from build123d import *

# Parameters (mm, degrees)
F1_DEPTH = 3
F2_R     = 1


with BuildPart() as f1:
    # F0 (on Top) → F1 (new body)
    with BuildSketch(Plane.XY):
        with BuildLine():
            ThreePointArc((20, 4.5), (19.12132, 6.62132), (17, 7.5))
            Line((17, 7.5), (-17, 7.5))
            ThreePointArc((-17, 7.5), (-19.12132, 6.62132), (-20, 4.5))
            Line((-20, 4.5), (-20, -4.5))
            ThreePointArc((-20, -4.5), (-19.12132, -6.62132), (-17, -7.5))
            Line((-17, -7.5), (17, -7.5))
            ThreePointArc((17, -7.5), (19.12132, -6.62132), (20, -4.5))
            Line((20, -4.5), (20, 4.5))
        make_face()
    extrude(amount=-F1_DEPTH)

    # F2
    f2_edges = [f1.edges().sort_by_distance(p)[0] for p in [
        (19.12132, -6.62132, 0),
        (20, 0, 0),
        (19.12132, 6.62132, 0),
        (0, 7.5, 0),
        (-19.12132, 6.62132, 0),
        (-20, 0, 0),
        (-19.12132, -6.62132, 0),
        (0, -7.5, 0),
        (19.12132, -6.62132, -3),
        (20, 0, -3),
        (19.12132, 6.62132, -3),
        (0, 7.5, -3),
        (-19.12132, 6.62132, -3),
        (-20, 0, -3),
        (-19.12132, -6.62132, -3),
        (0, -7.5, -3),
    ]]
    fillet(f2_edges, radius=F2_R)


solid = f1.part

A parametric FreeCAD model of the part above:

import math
import FreeCAD as App
import Part
import Sketcher

V = App.Vector


def edges_at(feature, points):
    """Names of the edges that pass closest to the given points."""
    edges = feature.Shape.Edges
    near = lambda p: min(range(len(edges)), key=lambda i: edges[i].distToShape(Part.Vertex(*p))[0])
    return sorted({f"Edge{near(p) + 1}" for p in points})

doc = App.newDocument("Part")
params = doc.addObject("Spreadsheet::Sheet", "Params")
for row, (alias, value) in enumerate([
    ("sketch1_radius", "3.000001 mm"),
    ("sketch1_width", "34 mm"),
    ("sketch1_height", "9 mm"),
    ("pad1_length", "3 mm"),
    ("fillet_radius", "1 mm"),
], start=1):
    params.set(f"A{row}", alias)
    params.set(f"B{row}", "=" + value)
    params.setAlias(f"B{row}", alias)

body = doc.addObject("PartDesign::Body", "Body")

# Sketch on XY plane
sketch1 = doc.addObject("Sketcher::SketchObject", "Sketch")
body.addObject(sketch1)
sketch1.AttachmentSupport = (doc.XY_Plane, [""])
sketch1.MapMode = "FlatFace"
sketch1.addGeometry([
    Part.ArcOfCircle(Part.Circle(V(17, 4.5, 0), V(0, 0, 1), 3), math.radians(0), math.radians(90)),  # 0
    Part.LineSegment(V(17, 7.5, 0), V(-17, 7.5, 0)),  # 1
    Part.ArcOfCircle(Part.Circle(V(-17, 4.5, 0), V(0, 0, 1), 3), math.radians(90), math.radians(180)),  # 2
    Part.LineSegment(V(-20, 4.5, 0), V(-20, -4.5, 0)),  # 3
    Part.ArcOfCircle(Part.Circle(V(-17, -4.5, 0), V(0, 0, 1), 3), math.radians(-180), math.radians(-90)),  # 4
    Part.LineSegment(V(-17, -7.5, 0), V(17, -7.5, 0)),  # 5
    Part.ArcOfCircle(Part.Circle(V(17, -4.5, 0), V(0, 0, 1), 3), math.radians(-90), math.radians(0)),  # 6
    Part.LineSegment(V(20, -4.5, 0), V(20, 4.5, 0)),  # 7
], False)
sketch1.addConstraint([
    Sketcher.Constraint("Tangent", 0, 2, 1, 1),
    Sketcher.Constraint("Tangent", 1, 2, 2, 1),
    Sketcher.Constraint("Tangent", 2, 2, 3, 1),
    Sketcher.Constraint("Tangent", 3, 2, 4, 1),
    Sketcher.Constraint("Tangent", 4, 2, 5, 1),
    Sketcher.Constraint("Tangent", 5, 2, 6, 1),
    Sketcher.Constraint("Tangent", 6, 2, 7, 1),
    Sketcher.Constraint("Tangent", 7, 2, 0, 1),
    Sketcher.Constraint("Horizontal", 1),
    Sketcher.Constraint("Vertical", 3),
    Sketcher.Constraint("Horizontal", 5),
    Sketcher.Constraint("Vertical", 7),
    Sketcher.Constraint("Equal", 0, 2),
    Sketcher.Constraint("Equal", 2, 4),
    Sketcher.Constraint("Equal", 4, 6),
    Sketcher.Constraint("Symmetric", 0, 3, 4, 3, -1, 1),
    Sketcher.Constraint("Radius", 0, 3.000001),
    Sketcher.Constraint("DistanceX", 1, 2, 1, 1, 34.0),
    Sketcher.Constraint("DistanceY", 3, 2, 3, 1, 9.0),
])
sketch1.setExpression("Constraints[16]", "Params.sketch1_radius")
sketch1.setExpression("Constraints[17]", "Params.sketch1_width")
sketch1.setExpression("Constraints[18]", "Params.sketch1_height")
pad1 = doc.addObject("PartDesign::Pad", "Pad")
body.addObject(pad1)
pad1.Profile = sketch1
pad1.setExpression("Length", "Params.pad1_length")
pad1.Reversed = True
doc.recompute()

fillet = doc.addObject("PartDesign::Fillet", "Fillet")
body.addObject(fillet)
fillet.Base = (pad1, edges_at(pad1, [
    (19.121, -6.621, 0),
    (20, 0, 0),
    (19.121, 6.621, 0),
    (0, 7.5, 0),
    (-19.121, 6.621, 0),
    (-20, 0, 0),
    (-19.121, -6.621, 0),
    (0, -7.5, 0),
    (19.121, -6.621, -3),
    (20, 0, -3),
    (19.121, 6.621, -3),
    (0, 7.5, -3),
    (-19.121, 6.621, -3),
    (-20, 0, -3),
    (-19.121, -6.621, -3),
    (0, -7.5, -3),
]))
fillet.setExpression("Radius", "Params.fillet_radius")

doc.recompute()
